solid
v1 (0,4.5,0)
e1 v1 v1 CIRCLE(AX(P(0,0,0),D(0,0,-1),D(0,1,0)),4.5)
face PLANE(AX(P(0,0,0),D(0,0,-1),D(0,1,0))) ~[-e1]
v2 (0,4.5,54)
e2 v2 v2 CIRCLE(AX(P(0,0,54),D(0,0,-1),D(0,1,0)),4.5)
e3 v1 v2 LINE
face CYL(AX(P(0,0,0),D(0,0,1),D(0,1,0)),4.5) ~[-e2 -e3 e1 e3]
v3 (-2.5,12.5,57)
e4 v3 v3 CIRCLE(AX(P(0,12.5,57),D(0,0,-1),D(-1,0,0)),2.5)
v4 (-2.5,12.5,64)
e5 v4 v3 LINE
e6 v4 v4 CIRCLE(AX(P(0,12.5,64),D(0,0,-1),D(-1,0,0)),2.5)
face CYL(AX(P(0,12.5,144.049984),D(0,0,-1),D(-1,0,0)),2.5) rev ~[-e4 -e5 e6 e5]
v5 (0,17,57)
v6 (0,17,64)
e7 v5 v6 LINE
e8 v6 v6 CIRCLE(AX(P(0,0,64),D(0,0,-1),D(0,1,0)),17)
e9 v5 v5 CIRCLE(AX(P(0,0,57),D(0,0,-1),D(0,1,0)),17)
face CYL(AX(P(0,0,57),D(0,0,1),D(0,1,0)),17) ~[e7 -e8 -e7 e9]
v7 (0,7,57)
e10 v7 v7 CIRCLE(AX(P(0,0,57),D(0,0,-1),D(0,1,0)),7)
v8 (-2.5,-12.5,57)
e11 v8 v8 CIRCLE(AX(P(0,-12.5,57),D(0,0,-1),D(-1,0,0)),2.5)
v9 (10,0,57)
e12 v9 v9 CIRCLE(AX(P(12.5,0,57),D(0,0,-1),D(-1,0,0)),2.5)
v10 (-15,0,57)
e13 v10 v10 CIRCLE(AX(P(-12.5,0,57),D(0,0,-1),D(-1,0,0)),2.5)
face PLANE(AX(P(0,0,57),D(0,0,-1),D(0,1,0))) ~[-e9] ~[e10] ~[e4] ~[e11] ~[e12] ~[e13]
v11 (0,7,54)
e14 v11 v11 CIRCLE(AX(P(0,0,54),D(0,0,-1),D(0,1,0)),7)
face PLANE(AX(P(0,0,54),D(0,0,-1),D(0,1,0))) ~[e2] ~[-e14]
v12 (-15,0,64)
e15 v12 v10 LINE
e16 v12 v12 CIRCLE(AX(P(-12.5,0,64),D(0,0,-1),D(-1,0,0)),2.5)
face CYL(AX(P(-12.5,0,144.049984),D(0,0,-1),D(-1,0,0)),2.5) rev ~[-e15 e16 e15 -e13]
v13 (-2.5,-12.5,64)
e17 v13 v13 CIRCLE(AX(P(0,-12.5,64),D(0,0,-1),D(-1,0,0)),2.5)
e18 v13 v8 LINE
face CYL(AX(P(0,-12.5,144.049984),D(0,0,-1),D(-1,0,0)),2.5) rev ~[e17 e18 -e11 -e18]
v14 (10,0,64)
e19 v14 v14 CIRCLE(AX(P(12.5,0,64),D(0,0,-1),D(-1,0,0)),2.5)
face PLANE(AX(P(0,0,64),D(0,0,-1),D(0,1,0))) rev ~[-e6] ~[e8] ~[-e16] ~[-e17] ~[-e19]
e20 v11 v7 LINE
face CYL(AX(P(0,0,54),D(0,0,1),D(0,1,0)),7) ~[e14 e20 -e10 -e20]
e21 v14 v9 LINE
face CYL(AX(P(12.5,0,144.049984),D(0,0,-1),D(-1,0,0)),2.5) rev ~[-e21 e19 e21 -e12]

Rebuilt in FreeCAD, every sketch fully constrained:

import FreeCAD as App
import Part
import Sketcher
Q = App.Units.Quantity


def add_polygon(sketch, points):
    """Adds a closed chain of lines whose ends are joined by coincident constraints."""
    first, n = sketch.GeometryCount, len(points)
    for a, b in zip(points, points[1:] + points[:1]):
        sketch.addGeometry(Part.LineSegment(App.Vector(*a, 0), App.Vector(*b, 0)), False)
    for i in range(n):
        sketch.addConstraint(Sketcher.Constraint("Coincident", first + i, 2, first + (i + 1) % n, 1))

doc = App.newDocument("Part")
body = doc.addObject("PartDesign::Body", "Body")

# Sketch on YZ plane
sketch1 = doc.addObject("Sketcher::SketchObject", "Sketch")
body.addObject(sketch1)
sketch1.AttachmentSupport = (doc.YZ_Plane, [""])
sketch1.MapMode = "FlatFace"
add_polygon(sketch1, [(0, 64), (0, 0), (4.5, 0), (4.5, 54), (7, 54), (7, 57), (17, 57), (17, 64)])  # lines 0-7
sketch1.addConstraint(Sketcher.Constraint("Vertical", 0))
sketch1.addConstraint(Sketcher.Constraint("Horizontal", 1))
sketch1.addConstraint(Sketcher.Constraint("Vertical", 2))
sketch1.addConstraint(Sketcher.Constraint("Horizontal", 3))
sketch1.addConstraint(Sketcher.Constraint("Vertical", 4))
sketch1.addConstraint(Sketcher.Constraint("Horizontal", 5))
sketch1.addConstraint(Sketcher.Constraint("Vertical", 6))
sketch1.addConstraint(Sketcher.Constraint("Horizontal", 7))
sketch1.addConstraint(Sketcher.Constraint("Coincident", 0, 2, -1, 1))
sketch1.addConstraint(Sketcher.Constraint("DistanceX", 5, 1, 5, 2, Q("10 mm")))
sketch1.addConstraint(Sketcher.Constraint("DistanceX", 7, 2, 7, 1, Q("17 mm")))
sketch1.addConstraint(Sketcher.Constraint("DistanceY", 0, 2, 0, 1, Q("64 mm")))
sketch1.addConstraint(Sketcher.Constraint("DistanceY", 2, 1, 2, 2, Q("54 mm")))
sketch1.addConstraint(Sketcher.Constraint("DistanceY", 4, 1, 4, 2, Q("3 mm")))
sketch1.addConstraint(Sketcher.Constraint("DistanceX", 1, 1, 1, 2, Q("4.5 mm")))
revolution = doc.addObject("PartDesign::Revolution", "Revolution")
body.addObject(revolution)
revolution.Profile = sketch1
revolution.ReferenceAxis = (sketch1, ["V_Axis"])
revolution.Angle = 360

# Sketch on XY plane
sketch2 = doc.addObject("Sketcher::SketchObject", "Sketch001")
body.addObject(sketch2)
sketch2.AttachmentSupport = (doc.XY_Plane, [""])
sketch2.MapMode = "FlatFace"
sketch2.AttachmentOffset = App.Placement(App.Vector(0, 0, 64), App.Rotation())
sketch2.addGeometry(Part.Circle(App.Vector(-12.5, 0, 0), App.Vector(0, 0, 1), 2.5), False)
sketch2.addGeometry(Part.Circle(App.Vector(0, -12.5, 0), App.Vector(0, 0, 1), 2.5), False)
sketch2.addGeometry(Part.Circle(App.Vector(12.5, 0, 0), App.Vector(0, 0, 1), 2.5), False)
sketch2.addGeometry(Part.Circle(App.Vector(0, 12.5, 0), App.Vector(0, 0, 1), 2.5), False)
sketch2.addConstraint(Sketcher.Constraint("Equal", 0, 1))
sketch2.addConstraint(Sketcher.Constraint("Equal", 1, 2))
sketch2.addConstraint(Sketcher.Constraint("Equal", 2, 3))
sketch2.addConstraint(Sketcher.Constraint("Symmetric", 0, 3, 2, 3, -1, 1))
sketch2.addConstraint(Sketcher.Constraint("Symmetric", 1, 3, 3, 3, -1, 1))
sketch2.addConstraint(Sketcher.Constraint("PointOnObject", 0, 3, -1))
sketch2.addConstraint(Sketcher.Constraint("PointOnObject", 1, 3, -2))
sketch2.addConstraint(Sketcher.Constraint("Diameter", 0, Q("5 mm")))
sketch2.addConstraint(Sketcher.Constraint("DistanceX", 0, 3, 2, 3, Q("25 mm")))
sketch2.addConstraint(Sketcher.Constraint("DistanceY", 1, 3, 3, 3, Q("25 mm")))
doc.recompute()
hole = doc.addObject("PartDesign::Hole", "Hole")
body.addObject(hole)
hole.Profile = sketch2
hole.ThreadType = "None"
hole.Diameter = 5
hole.DepthType = "ThroughAll"

doc.recompute()
